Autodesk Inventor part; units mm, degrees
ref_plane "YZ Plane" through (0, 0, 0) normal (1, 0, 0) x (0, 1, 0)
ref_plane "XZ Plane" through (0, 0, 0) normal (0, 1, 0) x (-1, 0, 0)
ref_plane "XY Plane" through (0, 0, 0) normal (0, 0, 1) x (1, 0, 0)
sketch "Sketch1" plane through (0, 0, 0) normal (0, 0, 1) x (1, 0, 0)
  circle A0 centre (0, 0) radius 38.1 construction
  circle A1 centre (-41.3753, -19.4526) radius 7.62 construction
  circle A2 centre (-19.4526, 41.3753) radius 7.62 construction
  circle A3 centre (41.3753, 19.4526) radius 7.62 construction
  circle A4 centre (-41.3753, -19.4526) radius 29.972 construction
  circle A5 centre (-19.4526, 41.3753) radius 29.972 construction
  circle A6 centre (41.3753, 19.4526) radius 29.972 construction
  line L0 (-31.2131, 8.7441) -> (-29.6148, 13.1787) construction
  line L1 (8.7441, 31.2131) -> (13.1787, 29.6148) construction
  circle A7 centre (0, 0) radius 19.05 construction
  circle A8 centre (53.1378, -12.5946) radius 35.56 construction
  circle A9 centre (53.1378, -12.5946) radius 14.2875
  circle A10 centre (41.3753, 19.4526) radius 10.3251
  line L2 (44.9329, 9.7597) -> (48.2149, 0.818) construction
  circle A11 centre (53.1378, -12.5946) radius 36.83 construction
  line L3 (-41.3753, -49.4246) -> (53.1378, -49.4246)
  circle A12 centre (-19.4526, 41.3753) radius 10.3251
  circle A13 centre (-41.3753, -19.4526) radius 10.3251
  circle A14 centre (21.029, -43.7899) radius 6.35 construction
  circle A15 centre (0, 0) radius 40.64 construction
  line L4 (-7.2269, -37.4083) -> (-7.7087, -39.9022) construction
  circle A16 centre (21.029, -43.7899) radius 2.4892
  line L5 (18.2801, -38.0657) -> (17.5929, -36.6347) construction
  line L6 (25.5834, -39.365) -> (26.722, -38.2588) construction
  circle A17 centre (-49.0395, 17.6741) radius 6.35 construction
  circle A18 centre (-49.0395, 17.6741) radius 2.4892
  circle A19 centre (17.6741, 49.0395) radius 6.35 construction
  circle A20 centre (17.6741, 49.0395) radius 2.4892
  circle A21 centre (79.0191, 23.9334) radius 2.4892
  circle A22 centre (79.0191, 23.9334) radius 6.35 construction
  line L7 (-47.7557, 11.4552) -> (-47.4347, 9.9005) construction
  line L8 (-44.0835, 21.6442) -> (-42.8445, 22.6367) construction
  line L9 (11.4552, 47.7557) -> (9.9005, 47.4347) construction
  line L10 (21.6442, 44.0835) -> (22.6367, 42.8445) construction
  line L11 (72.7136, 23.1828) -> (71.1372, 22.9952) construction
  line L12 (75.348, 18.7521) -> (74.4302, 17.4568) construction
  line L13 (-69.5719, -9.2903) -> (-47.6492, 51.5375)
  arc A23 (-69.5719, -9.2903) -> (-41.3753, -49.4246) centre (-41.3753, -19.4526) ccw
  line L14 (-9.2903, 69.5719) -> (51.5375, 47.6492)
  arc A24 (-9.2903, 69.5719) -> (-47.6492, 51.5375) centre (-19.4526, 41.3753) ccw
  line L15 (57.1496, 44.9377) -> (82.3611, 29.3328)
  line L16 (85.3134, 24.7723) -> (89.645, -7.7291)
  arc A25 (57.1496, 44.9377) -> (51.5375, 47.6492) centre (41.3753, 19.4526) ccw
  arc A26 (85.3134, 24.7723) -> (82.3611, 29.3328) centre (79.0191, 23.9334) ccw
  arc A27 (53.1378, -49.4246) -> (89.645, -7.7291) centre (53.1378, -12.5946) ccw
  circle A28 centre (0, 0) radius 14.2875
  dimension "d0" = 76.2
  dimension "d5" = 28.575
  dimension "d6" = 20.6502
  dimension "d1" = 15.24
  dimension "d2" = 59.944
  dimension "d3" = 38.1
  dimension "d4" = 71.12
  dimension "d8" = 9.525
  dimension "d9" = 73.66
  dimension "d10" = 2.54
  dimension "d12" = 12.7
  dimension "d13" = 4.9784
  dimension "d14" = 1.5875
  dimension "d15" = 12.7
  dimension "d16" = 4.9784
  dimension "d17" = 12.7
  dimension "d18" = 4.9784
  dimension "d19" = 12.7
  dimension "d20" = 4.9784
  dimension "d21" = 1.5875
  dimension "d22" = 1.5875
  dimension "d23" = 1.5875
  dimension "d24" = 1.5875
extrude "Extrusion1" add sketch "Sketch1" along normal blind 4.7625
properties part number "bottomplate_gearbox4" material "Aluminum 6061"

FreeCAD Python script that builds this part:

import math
import FreeCAD as App
import Part
import Sketcher
Q = App.Units.Quantity

doc = App.newDocument("Part")
body = doc.addObject("PartDesign::Body", "Body")

# Sketch on XY plane
sketch1 = body.newObject("Sketcher::SketchObject", "Sketch")
sketch1.AttachmentSupport = (doc.getObject("XY_Plane"), [""])
sketch1.MapMode = "FlatFace"
sketch1.addGeometry(Part.ArcOfCircle(Part.Circle(App.Vector(-41.3753, -19.4526, 0), App.Vector(0, 0, 1), 29.972), math.radians(160.180396), math.radians(270)), False)
sketch1.addGeometry(Part.LineSegment(App.Vector(-41.3753, -49.4246, 0), App.Vector(53.1378, -49.4246, 0)), False)
sketch1.addGeometry(Part.ArcOfCircle(Part.Circle(App.Vector(53.1378, -12.5946, 0), App.Vector(0, 0, 1), 36.83), math.radians(-90), math.radians(7.591364)), False)
sketch1.addGeometry(Part.LineSegment(App.Vector(89.645, -7.7291, 0), App.Vector(85.3134, 24.7723, 0)), False)
sketch1.addGeometry(Part.ArcOfCircle(Part.Circle(App.Vector(79.0191, 23.9334, 0), App.Vector(0, 0, 1), 6.35), math.radians(7.591602), math.radians(58.244246)), False)
sketch1.addGeometry(Part.LineSegment(App.Vector(82.3611, 29.3328, 0), App.Vector(57.1496, 44.9377, 0)), False)
sketch1.addGeometry(Part.ArcOfCircle(Part.Circle(App.Vector(41.3753, 19.4526, 0), App.Vector(0, 0, 1), 29.971968), math.radians(58.24408), math.radians(70.180576)), False)
sketch1.addGeometry(Part.LineSegment(App.Vector(51.5375, 47.6492, 0), App.Vector(-9.2903, 69.5719, 0)), False)
sketch1.addGeometry(Part.ArcOfCircle(Part.Circle(App.Vector(-19.4526, 41.3753, 0), App.Vector(0, 0, 1), 29.971997), math.radians(70.180396), math.radians(160.180576)), False)
sketch1.addGeometry(Part.LineSegment(App.Vector(-47.6492, 51.5375, 0), App.Vector(-69.5719, -9.2903, 0)), False)
sketch1.addGeometry(Part.Circle(App.Vector(-41.3753, -19.4526, 0), App.Vector(0, 0, 1), 10.3251), False)
sketch1.addGeometry(Part.Circle(App.Vector(0, 0, 0), App.Vector(0, 0, 1), 14.2875), False)
sketch1.addGeometry(Part.Circle(App.Vector(21.029, -43.7899, 0), App.Vector(0, 0, 1), 2.4892), False)
sketch1.addGeometry(Part.Circle(App.Vector(53.1378, -12.5946, 0), App.Vector(0, 0, 1), 14.2875), False)
sketch1.addGeometry(Part.Circle(App.Vector(-49.0395, 17.6741, 0), App.Vector(0, 0, 1), 2.4892), False)
sketch1.addGeometry(Part.Circle(App.Vector(-19.4526, 41.3753, 0), App.Vector(0, 0, 1), 10.3251), False)
sketch1.addGeometry(Part.Circle(App.Vector(41.3753, 19.4526, 0), App.Vector(0, 0, 1), 10.3251), False)
sketch1.addGeometry(Part.Circle(App.Vector(79.0191, 23.9334, 0), App.Vector(0, 0, 1), 2.4892), False)
sketch1.addGeometry(Part.Circle(App.Vector(17.6741, 49.0395, 0), App.Vector(0, 0, 1), 2.4892), False)
sketch1.addConstraint(Sketcher.Constraint("Tangent", 0, 2, 1, 1))
sketch1.addConstraint(Sketcher.Constraint("Tangent", 1, 2, 2, 1))
sketch1.addConstraint(Sketcher.Constraint("Tangent", 2, 2, 3, 1))
sketch1.addConstraint(Sketcher.Constraint("Tangent", 3, 2, 4, 1))
sketch1.addConstraint(Sketcher.Constraint("Tangent", 4, 2, 5, 1))
sketch1.addConstraint(Sketcher.Constraint("Tangent", 5, 2, 6, 1))
sketch1.addConstraint(Sketcher.Constraint("Tangent", 6, 2, 7, 1))
sketch1.addConstraint(Sketcher.Constraint("Tangent", 7, 2, 8, 1))
sketch1.addConstraint(Sketcher.Constraint("Tangent", 8, 2, 9, 1))
sketch1.addConstraint(Sketcher.Constraint("Tangent", 9, 2, 0, 1))
sketch1.addConstraint(Sketcher.Constraint("Horizontal", 1))
sketch1.addConstraint(Sketcher.Constraint("Coincident", 11, 3, -1, 1))
sketch1.addConstraint(Sketcher.Constraint("Coincident", 10, 3, 0, 3))
sketch1.addConstraint(Sketcher.Constraint("Coincident", 13, 3, 2, 3))
sketch1.addConstraint(Sketcher.Constraint("Coincident", 15, 3, 8, 3))
sketch1.addConstraint(Sketcher.Constraint("Coincident", 16, 3, 6, 3))
sketch1.addConstraint(Sketcher.Constraint("Coincident", 17, 3, 4, 3))
sketch1.addConstraint(Sketcher.Constraint("Equal", 0, 6))
sketch1.addConstraint(Sketcher.Constraint("Equal", 6, 8))
sketch1.addConstraint(Sketcher.Constraint("Equal", 11, 13))
sketch1.addConstraint(Sketcher.Constraint("Equal", 12, 14))
sketch1.addConstraint(Sketcher.Constraint("Equal", 10, 15))
sketch1.addConstraint(Sketcher.Constraint("Equal", 15, 16))
sketch1.addConstraint(Sketcher.Constraint("Equal", 14, 17))
sketch1.addConstraint(Sketcher.Constraint("Equal", 17, 18))
sketch1.addConstraint(Sketcher.Constraint("Symmetric", 0, 3, 6, 3, -1, 1))
sketch1.addConstraint(Sketcher.Constraint("Perpendicular", 7, 9))
sketch1.addConstraint(Sketcher.Constraint("Equal", 7, 9))
sketch1.addConstraint(Sketcher.Constraint("Radius", 0, Q("1.18 in")))
sketch1.addConstraint(Sketcher.Constraint("Radius", 2, Q("1.45 in")))
sketch1.addConstraint(Sketcher.Constraint("Radius", 4, Q("0.25 in")))
sketch1.addConstraint(Sketcher.Constraint("Diameter", 10, Q("0.813 in")))
sketch1.addConstraint(Sketcher.Constraint("Diameter", 11, Q("1.125 in")))
sketch1.addConstraint(Sketcher.Constraint("Diameter", 12, Q("0.196 in")))
sketch1.addConstraint(Sketcher.Constraint("DistanceX", 1, 1, 1, 2, Q("3.721 in")))
sketch1.addConstraint(Sketcher.Constraint("Angle", 7, Q("160.1805 deg")))
sketch1.addConstraint(Sketcher.Constraint("DistanceX", -1, 1, 4, 3, Q("3.111 in")))
sketch1.addConstraint(Sketcher.Constraint("DistanceY", 12, 3, -1, 1, Q("1.724 in")))
sketch1.addConstraint(Sketcher.Constraint("DistanceX", 5, 2, 4, 3, Q("0.861 in")))
sketch1.addConstraint(Sketcher.Constraint("Distance", 3, Q("1.2909 in")))
sketch1.addConstraint(Sketcher.Constraint("DistanceX", 14, 3, -1, 1, Q("1.9307 in")))
sketch1.addConstraint(Sketcher.Constraint("DistanceY", -1, 1, 18, 3, Q("1.9307 in")))
sketch1.addConstraint(Sketcher.Constraint("DistanceX", 18, 3, 6, 2, Q("1.3332 in")))
sketch1.addConstraint(Sketcher.Constraint("DistanceY", 14, 3, 8, 2, Q("1.3332 in")))
sketch1.addConstraint(Sketcher.Constraint("DistanceX", -1, 1, 12, 3, Q("21.029 mm")))
pad1 = body.newObject("PartDesign::Pad", "Pad")
pad1.Profile = sketch1
pad1.Length = Q("0.1875 in")

doc.recompute()
